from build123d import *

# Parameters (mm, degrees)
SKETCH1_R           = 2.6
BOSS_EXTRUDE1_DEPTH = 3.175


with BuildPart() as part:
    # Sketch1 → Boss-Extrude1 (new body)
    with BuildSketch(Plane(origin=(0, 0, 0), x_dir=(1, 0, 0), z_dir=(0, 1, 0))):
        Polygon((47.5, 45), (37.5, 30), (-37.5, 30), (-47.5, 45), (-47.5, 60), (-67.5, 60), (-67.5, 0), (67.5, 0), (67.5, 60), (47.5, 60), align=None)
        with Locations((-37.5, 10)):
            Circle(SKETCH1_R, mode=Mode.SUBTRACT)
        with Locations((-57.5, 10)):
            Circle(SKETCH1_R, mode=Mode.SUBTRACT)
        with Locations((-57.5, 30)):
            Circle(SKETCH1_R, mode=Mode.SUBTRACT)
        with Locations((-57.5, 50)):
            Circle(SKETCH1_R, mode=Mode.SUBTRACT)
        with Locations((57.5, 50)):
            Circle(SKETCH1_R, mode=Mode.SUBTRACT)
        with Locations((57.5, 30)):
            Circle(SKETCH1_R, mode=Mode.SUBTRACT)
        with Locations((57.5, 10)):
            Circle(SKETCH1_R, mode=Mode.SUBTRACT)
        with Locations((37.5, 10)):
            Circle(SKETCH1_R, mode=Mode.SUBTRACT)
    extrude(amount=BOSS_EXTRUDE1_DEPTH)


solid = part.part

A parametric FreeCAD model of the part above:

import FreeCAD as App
import Part
import Sketcher

V = App.Vector


def add_polygon(sketch, points):
    """Adds a closed chain of lines whose ends are joined by coincident constraints."""
    first, n = sketch.GeometryCount, len(points)
    for a, b in zip(points, points[1:] + points[:1]):
        sketch.addGeometry(Part.LineSegment(App.Vector(*a, 0), App.Vector(*b, 0)), False)
    for i in range(n):
        sketch.addConstraint(Sketcher.Constraint("Coincident", first + i, 2, first + (i + 1) % n, 1))

doc = App.newDocument("Part")
body = doc.addObject("PartDesign::Body", "Body")

sketch1 = doc.addObject("Sketcher::SketchObject", "Sketch")
body.addObject(sketch1)
sketch1.AttachmentSupport = (doc.XZ_Plane, [""])
sketch1.MapMode = "FlatFace"
add_polygon(sketch1, [(47.5, -45), (37.5, -30), (-37.5, -30), (-47.5, -45), (-47.5, -60), (-67.5, -60), (-67.5, 0), (67.5, 0), (67.5, -60), (47.5, -60)])
sketch1.addGeometry(Part.Circle(V(-57.5, -10, 0), V(0, 0, 1), 2.6), False)
sketch1.addGeometry(Part.Circle(V(-37.5, -10, 0), V(0, 0, 1), 2.6), False)
sketch1.addGeometry(Part.Circle(V(37.5, -10, 0), V(0, 0, 1), 2.6), False)
sketch1.addGeometry(Part.Circle(V(57.5, -10, 0), V(0, 0, 1), 2.6), False)
sketch1.addGeometry(Part.Circle(V(-57.5, -30, 0), V(0, 0, 1), 2.6), False)
sketch1.addGeometry(Part.Circle(V(-57.5, -50, 0), V(0, 0, 1), 2.6), False)
sketch1.addGeometry(Part.Circle(V(57.5, -30, 0), V(0, 0, 1), 2.6), False)
sketch1.addGeometry(Part.Circle(V(57.5, -50, 0), V(0, 0, 1), 2.6), False)
sketch1.addConstraint([
    Sketcher.Constraint("Horizontal", 1),
    Sketcher.Constraint("Vertical", 3),
    Sketcher.Constraint("Horizontal", 4),
    Sketcher.Constraint("Vertical", 5),
    Sketcher.Constraint("Horizontal", 6),
    Sketcher.Constraint("Vertical", 7),
    Sketcher.Constraint("Horizontal", 8),
    Sketcher.Constraint("Vertical", 9),
    Sketcher.Constraint("Equal", 10, 11),
    Sketcher.Constraint("Equal", 11, 12),
    Sketcher.Constraint("Equal", 12, 13),
    Sketcher.Constraint("Equal", 13, 14),
    Sketcher.Constraint("Equal", 14, 15),
    Sketcher.Constraint("Equal", 15, 16),
    Sketcher.Constraint("Equal", 16, 17),
    Sketcher.Constraint("Symmetric", 5, 2, 6, 2, -1, 1),
    Sketcher.Constraint("Symmetric", 11, 3, 12, 3, -2),
    Sketcher.Constraint("Symmetric", 10, 3, 13, 3, -2),
    Sketcher.Constraint("Symmetric", 14, 3, 16, 3, -2),
    Sketcher.Constraint("Symmetric", 15, 3, 17, 3, -2),
    Sketcher.Constraint("Symmetric", 3, 2, 8, 2, -2),
    Sketcher.Constraint("Horizontal", 10, 3, 11, 3),
    Sketcher.Constraint("Horizontal", 16, 3, 0, 2),
    Sketcher.Constraint("Horizontal", 2, 2, 9, 2),
    Sketcher.Constraint("Vertical", 10, 3, 14, 3),
    Sketcher.Constraint("Vertical", 14, 3, 15, 3),
    Sketcher.Constraint("Vertical", 12, 3, 0, 2),
    Sketcher.Constraint("Vertical", 11, 3, 1, 2),
    Sketcher.Constraint("Diameter", 10, 5.2),
    Sketcher.Constraint("DistanceX", 1, 2, 1, 1, 75.0),
    Sketcher.Constraint("DistanceX", 4, 2, 4, 1, 20.0),
    Sketcher.Constraint("DistanceX", 6, 1, 6, 2, 135.0),
    Sketcher.Constraint("DistanceY", 3, 2, 3, 1, 15.0),
    Sketcher.Constraint("DistanceY", 5, 1, 5, 2, 60.0),
    Sketcher.Constraint("DistanceY", 10, 3, -1, 1, 10.0),
    Sketcher.Constraint("DistanceY", 14, 3, -1, 1, 30.0),
    Sketcher.Constraint("DistanceY", 15, 3, -1, 1, 50.0),
    Sketcher.Constraint("DistanceX", 10, 3, 11, 3, 20.0),
])
pad1 = doc.addObject("PartDesign::Pad", "Pad")
body.addObject(pad1)
pad1.Profile = sketch1
pad1.Length = 3.175
pad1.Reversed = True

doc.recompute()
